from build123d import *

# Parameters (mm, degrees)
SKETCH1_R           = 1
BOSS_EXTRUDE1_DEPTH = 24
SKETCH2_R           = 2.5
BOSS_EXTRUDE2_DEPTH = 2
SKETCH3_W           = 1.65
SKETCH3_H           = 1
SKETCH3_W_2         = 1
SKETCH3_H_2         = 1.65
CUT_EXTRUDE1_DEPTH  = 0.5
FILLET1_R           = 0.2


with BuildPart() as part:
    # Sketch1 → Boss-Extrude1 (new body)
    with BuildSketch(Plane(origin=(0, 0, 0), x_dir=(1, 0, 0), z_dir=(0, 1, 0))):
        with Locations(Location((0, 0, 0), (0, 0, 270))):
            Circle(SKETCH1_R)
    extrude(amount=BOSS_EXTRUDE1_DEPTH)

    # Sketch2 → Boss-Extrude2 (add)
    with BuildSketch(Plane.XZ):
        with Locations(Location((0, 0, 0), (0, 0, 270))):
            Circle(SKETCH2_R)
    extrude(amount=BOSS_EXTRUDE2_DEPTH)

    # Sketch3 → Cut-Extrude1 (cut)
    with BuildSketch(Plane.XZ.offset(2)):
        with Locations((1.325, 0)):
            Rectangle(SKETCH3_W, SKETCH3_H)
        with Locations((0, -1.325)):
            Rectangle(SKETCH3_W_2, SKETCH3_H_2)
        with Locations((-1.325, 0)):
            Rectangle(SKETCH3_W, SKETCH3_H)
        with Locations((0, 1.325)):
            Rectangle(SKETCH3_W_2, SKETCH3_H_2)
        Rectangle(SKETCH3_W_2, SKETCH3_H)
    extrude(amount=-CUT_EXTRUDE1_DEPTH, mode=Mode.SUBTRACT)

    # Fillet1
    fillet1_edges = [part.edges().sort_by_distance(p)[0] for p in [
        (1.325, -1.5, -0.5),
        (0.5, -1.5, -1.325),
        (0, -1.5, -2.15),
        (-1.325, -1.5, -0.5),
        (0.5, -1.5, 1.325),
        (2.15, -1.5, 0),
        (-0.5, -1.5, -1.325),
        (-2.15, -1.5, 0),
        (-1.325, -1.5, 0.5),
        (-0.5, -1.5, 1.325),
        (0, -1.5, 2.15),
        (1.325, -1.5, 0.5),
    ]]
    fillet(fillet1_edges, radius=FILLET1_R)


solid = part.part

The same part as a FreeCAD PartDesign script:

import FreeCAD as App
import Part
import Sketcher


def edges_at(feature, points):
    """Names of the edges that pass closest to the given points."""
    edges = feature.Shape.Edges
    near = lambda p: min(range(len(edges)), key=lambda i: edges[i].distToShape(Part.Vertex(*p))[0])
    return sorted({f"Edge{near(p) + 1}" for p in points})


def add_polygon(sketch, points):
    """Adds a closed chain of lines whose ends are joined by coincident constraints."""
    first, n = sketch.GeometryCount, len(points)
    for a, b in zip(points, points[1:] + points[:1]):
        sketch.addGeometry(Part.LineSegment(App.Vector(*a, 0), App.Vector(*b, 0)), False)
    for i in range(n):
        sketch.addConstraint(Sketcher.Constraint("Coincident", first + i, 2, first + (i + 1) % n, 1))

doc = App.newDocument("Part")
body = doc.addObject("PartDesign::Body", "Body")

sketch1 = body.newObject("Sketcher::SketchObject", "Sketch")
sketch1.AttachmentSupport = (doc.getObject("XZ_Plane"), [""])
sketch1.MapMode = "FlatFace"
sketch1.addGeometry(Part.Circle(App.Vector(0, 0, 0), App.Vector(0, 0, 1), 1), False)
sketch1.addConstraint(Sketcher.Constraint("Coincident", 0, 3, -1, 1))
sketch1.addConstraint(Sketcher.Constraint("Diameter", 0, 2.0))
pad1 = body.newObject("PartDesign::Pad", "Pad")
pad1.Profile = sketch1
pad1.Length = 24
pad1.Reversed = True

sketch2 = body.newObject("Sketcher::SketchObject", "Sketch001")
sketch2.AttachmentSupport = (doc.getObject("XZ_Plane"), [""])
sketch2.MapMode = "FlatFace"
sketch2.addGeometry(Part.Circle(App.Vector(0, 0, 0), App.Vector(0, 0, 1), 2.5), False)
sketch2.addConstraint(Sketcher.Constraint("Coincident", 0, 3, -1, 1))
sketch2.addConstraint(Sketcher.Constraint("Diameter", 0, 5.0))
pad2 = body.newObject("PartDesign::Pad", "Pad001")
pad2.Profile = sketch2
pad2.Length = 2

sketch3 = body.newObject("Sketcher::SketchObject", "Sketch002")
sketch3.AttachmentSupport = (doc.getObject("XZ_Plane"), [""])
sketch3.MapMode = "FlatFace"
sketch3.AttachmentOffset = App.Placement(App.Vector(0, 0, 2), App.Rotation())
add_polygon(sketch3, [(0.5, -0.5), (2.15, -0.5), (2.15, 0.5), (0.5, 0.5), (0.5, 2.15), (-0.5, 2.15), (-0.5, 0.5), (-2.15, 0.5), (-2.15, -0.5), (-0.5, -0.5), (-0.5, -2.15), (0.5, -2.15)])
sketch3.addConstraint(Sketcher.Constraint("Horizontal", 0))
sketch3.addConstraint(Sketcher.Constraint("Vertical", 1))
sketch3.addConstraint(Sketcher.Constraint("Horizontal", 2))
sketch3.addConstraint(Sketcher.Constraint("Vertical", 3))
sketch3.addConstraint(Sketcher.Constraint("Horizontal", 4))
sketch3.addConstraint(Sketcher.Constraint("Vertical", 5))
sketch3.addConstraint(Sketcher.Constraint("Horizontal", 6))
sketch3.addConstraint(Sketcher.Constraint("Vertical", 7))
sketch3.addConstraint(Sketcher.Constraint("Horizontal", 8))
sketch3.addConstraint(Sketcher.Constraint("Vertical", 9))
sketch3.addConstraint(Sketcher.Constraint("Horizontal", 10))
sketch3.addConstraint(Sketcher.Constraint("Vertical", 11))
sketch3.addConstraint(Sketcher.Constraint("Symmetric", 0, 2, 6, 2, -1, 1))
sketch3.addConstraint(Sketcher.Constraint("Symmetric", 2, 2, 8, 2, -1, 1))
sketch3.addConstraint(Sketcher.Constraint("Symmetric", 4, 2, 10, 2, -1, 1))
sketch3.addConstraint(Sketcher.Constraint("Symmetric", 2, 2, 5, 2, -2))
sketch3.addConstraint(Sketcher.Constraint("Equal", 10, 1))
sketch3.addConstraint(Sketcher.Constraint("Equal", 8, 3))
sketch3.addConstraint(Sketcher.Constraint("DistanceX", 4, 2, 4, 1, 1.0))
sketch3.addConstraint(Sketcher.Constraint("DistanceX", 0, 1, 0, 2, 1.65))
pocket1 = body.newObject("PartDesign::Pocket", "Pocket")
pocket1.Profile = sketch3
pocket1.Length = 0.5
doc.recompute()

fillet = body.newObject("PartDesign::Fillet", "Fillet")
fillet.Base = (pocket1, edges_at(pocket1, [
    (1.325, -1.5, -0.5),
    (0.5, -1.5, -1.325),
    (0, -1.5, -2.15),
    (-1.325, -1.5, -0.5),
    (0.5, -1.5, 1.325),
    (2.15, -1.5, 0),
    (-0.5, -1.5, -1.325),
    (-2.15, -1.5, 0),
    (-1.325, -1.5, 0.5),
    (-0.5, -1.5, 1.325),
    (0, -1.5, 2.15),
    (1.325, -1.5, 0.5),
]))
fillet.Radius = 0.2

doc.recompute()
